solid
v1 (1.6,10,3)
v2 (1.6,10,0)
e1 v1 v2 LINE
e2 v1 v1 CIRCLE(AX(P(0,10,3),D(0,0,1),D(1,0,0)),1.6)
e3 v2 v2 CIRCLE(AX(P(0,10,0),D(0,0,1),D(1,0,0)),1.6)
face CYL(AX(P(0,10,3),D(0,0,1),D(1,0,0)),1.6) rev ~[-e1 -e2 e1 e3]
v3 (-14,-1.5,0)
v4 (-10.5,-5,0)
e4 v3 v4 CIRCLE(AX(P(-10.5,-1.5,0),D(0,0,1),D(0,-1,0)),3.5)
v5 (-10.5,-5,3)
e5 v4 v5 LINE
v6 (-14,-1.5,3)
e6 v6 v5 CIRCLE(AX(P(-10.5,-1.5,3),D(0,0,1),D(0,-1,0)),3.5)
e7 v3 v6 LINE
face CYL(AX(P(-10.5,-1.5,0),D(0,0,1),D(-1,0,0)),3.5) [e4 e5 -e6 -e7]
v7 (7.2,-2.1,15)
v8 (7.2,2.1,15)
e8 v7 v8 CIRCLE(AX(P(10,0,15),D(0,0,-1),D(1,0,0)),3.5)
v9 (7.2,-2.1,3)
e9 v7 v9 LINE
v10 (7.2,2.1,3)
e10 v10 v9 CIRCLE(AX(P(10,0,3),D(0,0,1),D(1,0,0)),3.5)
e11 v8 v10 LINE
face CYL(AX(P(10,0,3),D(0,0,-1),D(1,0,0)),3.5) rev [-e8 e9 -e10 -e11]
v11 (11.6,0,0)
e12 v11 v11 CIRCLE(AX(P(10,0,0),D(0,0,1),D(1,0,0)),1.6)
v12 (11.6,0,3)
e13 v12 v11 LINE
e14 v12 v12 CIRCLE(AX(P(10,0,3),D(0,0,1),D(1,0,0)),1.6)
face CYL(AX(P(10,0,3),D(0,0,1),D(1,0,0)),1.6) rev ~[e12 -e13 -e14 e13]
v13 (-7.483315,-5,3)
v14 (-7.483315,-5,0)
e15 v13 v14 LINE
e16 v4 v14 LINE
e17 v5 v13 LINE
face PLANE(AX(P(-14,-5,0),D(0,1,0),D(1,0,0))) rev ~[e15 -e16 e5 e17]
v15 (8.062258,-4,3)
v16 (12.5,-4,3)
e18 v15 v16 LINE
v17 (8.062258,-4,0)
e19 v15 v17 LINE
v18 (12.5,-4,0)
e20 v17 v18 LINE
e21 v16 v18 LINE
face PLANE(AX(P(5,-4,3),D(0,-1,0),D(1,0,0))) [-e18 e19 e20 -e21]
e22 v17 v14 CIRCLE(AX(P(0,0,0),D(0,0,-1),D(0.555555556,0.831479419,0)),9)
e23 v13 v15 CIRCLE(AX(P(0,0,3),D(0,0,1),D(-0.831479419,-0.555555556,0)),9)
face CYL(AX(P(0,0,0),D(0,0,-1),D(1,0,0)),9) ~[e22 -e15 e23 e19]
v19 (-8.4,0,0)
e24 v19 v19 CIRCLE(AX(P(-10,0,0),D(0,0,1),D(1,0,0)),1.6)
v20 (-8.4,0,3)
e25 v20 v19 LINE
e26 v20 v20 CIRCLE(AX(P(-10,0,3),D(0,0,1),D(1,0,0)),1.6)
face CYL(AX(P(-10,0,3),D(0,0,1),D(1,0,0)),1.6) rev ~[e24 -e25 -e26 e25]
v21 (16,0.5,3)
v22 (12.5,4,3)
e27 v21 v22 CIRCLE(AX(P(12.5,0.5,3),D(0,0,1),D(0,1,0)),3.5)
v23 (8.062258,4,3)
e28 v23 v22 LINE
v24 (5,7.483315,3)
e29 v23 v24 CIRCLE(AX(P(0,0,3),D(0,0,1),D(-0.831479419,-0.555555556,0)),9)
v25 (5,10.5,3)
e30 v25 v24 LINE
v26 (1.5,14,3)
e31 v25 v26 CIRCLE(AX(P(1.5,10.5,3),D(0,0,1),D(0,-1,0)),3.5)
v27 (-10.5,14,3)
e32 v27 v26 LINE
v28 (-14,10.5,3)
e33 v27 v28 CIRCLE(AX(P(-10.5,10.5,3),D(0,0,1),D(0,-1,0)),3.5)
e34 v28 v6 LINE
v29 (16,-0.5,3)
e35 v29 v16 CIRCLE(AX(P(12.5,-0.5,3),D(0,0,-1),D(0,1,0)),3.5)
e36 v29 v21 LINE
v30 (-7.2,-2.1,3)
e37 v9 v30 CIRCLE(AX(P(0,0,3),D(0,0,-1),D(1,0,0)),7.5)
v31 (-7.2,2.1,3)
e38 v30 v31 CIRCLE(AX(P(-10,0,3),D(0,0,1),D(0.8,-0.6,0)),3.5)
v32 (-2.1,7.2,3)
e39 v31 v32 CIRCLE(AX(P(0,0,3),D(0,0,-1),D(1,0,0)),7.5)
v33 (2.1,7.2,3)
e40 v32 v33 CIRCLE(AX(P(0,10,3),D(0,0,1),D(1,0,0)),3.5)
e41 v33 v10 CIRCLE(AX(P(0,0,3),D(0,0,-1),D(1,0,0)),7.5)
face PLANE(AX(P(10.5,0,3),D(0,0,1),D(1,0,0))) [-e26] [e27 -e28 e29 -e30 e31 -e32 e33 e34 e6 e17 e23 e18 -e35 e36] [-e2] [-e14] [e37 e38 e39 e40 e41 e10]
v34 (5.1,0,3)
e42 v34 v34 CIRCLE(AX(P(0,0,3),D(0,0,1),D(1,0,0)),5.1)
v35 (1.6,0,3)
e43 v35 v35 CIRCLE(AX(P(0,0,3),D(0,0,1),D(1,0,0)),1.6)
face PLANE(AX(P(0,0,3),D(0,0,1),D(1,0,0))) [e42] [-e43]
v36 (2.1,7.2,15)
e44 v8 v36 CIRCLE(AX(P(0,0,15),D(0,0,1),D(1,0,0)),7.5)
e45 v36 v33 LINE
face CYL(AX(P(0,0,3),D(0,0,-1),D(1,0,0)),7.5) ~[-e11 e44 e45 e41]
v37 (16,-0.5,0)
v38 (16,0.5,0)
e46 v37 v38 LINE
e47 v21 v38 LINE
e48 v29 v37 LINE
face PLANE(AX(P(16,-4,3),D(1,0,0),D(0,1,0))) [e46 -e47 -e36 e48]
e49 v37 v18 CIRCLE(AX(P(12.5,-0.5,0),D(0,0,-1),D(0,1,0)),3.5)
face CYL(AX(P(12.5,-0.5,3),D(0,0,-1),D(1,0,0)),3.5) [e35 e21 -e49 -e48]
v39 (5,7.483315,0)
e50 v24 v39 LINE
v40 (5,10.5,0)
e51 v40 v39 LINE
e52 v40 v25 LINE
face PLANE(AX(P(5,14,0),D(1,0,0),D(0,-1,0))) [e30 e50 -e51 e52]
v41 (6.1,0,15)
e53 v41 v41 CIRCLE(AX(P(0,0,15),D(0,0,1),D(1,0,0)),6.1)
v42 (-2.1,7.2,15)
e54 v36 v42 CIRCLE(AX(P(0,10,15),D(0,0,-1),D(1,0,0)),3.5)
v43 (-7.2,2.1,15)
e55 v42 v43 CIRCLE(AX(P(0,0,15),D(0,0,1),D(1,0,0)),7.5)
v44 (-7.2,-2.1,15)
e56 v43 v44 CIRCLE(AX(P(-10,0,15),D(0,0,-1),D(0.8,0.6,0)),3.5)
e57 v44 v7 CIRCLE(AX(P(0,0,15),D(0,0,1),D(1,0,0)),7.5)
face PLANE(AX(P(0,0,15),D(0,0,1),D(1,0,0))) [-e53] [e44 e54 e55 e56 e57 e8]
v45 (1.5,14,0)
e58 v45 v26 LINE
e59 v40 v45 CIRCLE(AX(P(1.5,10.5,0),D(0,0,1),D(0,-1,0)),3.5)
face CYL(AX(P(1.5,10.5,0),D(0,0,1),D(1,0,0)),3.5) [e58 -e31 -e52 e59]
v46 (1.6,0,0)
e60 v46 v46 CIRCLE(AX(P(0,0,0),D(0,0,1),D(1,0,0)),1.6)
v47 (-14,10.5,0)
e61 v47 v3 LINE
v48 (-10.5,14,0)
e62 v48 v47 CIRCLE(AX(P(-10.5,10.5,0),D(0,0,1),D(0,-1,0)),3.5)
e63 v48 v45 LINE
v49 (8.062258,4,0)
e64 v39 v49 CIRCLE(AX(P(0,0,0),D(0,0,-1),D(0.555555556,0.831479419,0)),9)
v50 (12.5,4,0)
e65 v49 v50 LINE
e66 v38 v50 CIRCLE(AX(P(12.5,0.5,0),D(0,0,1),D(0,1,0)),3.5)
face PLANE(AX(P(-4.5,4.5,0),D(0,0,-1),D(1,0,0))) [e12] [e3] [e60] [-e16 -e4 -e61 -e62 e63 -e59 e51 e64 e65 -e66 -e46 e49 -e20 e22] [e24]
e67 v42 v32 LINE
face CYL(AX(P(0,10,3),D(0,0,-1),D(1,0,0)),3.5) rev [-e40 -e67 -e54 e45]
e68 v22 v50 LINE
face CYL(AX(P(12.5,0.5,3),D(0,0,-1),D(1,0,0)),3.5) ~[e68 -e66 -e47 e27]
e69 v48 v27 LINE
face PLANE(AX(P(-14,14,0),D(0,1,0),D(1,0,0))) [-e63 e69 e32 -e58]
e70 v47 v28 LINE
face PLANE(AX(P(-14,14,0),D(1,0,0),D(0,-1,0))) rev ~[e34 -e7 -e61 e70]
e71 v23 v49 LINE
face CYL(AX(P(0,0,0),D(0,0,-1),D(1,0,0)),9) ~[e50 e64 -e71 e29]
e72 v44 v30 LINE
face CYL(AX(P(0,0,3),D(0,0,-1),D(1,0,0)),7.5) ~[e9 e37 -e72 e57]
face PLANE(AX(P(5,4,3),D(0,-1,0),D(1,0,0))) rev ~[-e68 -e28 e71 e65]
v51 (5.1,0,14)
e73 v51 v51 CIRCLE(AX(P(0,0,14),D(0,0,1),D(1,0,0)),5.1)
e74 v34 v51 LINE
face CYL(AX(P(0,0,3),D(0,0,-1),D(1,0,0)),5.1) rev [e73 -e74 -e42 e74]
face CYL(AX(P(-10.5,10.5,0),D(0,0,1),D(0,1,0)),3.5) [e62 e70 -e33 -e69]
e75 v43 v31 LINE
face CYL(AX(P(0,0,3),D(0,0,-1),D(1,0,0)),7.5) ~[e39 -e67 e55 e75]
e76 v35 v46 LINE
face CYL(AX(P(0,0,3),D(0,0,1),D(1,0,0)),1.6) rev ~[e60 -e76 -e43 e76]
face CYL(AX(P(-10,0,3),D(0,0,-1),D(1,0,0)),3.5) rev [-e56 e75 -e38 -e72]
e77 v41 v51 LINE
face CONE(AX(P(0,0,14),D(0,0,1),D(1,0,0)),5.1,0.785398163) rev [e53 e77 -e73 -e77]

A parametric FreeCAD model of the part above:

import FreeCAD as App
import Part
import Sketcher
from FreeCAD import Vector


def edges_at(feature, points):
    """Names of the edges that pass closest to the given points."""
    edges = feature.Shape.Edges
    near = lambda p: min(range(len(edges)), key=lambda i: edges[i].distToShape(Part.Vertex(*p))[0])
    return sorted({f"Edge{near(p) + 1}" for p in points})

doc = App.newDocument("Part")
body = doc.addObject("PartDesign::Body", "Body")

# Sketch on XY plane
sketch1 = body.newObject("Sketcher::SketchObject", "Sketch")
sketch1.AttachmentSupport = (doc.getObject("XY_Plane"), [""])
sketch1.MapMode = "FlatFace"
sketch1.addGeometry([
    Part.Circle(Vector(0, 0, 0), Vector(0, 0, 1), 9),
    Part.Circle(Vector(0, 0, 0), Vector(0, 0, 1), 1.6),
], False)
sketch1.addConstraint([
    Sketcher.Constraint("Coincident", 0, 3, -1, 1),
    Sketcher.Constraint("Coincident", 1, 3, -1, 1),
    Sketcher.Constraint("Diameter", 0, 18.0),
    Sketcher.Constraint("Diameter", 1, 3.2),
])
pad1 = body.newObject("PartDesign::Pad", "Pad")
pad1.Profile = sketch1
pad1.Length = 3

# Sketch on XY plane
sketch2 = body.newObject("Sketcher::SketchObject", "Sketch001")
sketch2.AttachmentSupport = (doc.getObject("XY_Plane"), [""])
sketch2.MapMode = "FlatFace"
sketch2.AttachmentOffset = App.Placement(Vector(0, 0, 3), App.Rotation())
sketch2.addGeometry([
    Part.Circle(Vector(0, 0, 0), Vector(0, 0, 1), 8),
    Part.Circle(Vector(0, 0, 0), Vector(0, 0, 1), 5),
], False)
sketch2.addConstraint([
    Sketcher.Constraint("Coincident", 0, 3, -1, 1),
    Sketcher.Constraint("Coincident", 1, 3, -1, 1),
    Sketcher.Constraint("Diameter", 0, 15.0),
    Sketcher.Constraint("Diameter", 1, 10.2),
])
pad2 = body.newObject("PartDesign::Pad", "Pad001")
pad2.Profile = sketch2
pad2.Length = 12

# Sketch on XY plane
sketch3 = body.newObject("Sketcher::SketchObject", "Sketch002")
sketch3.AttachmentSupport = (doc.getObject("XY_Plane"), [""])
sketch3.MapMode = "FlatFace"
sketch3.addGeometry([
    Part.LineSegment(Vector(-14, -5, 0), Vector(-14, 14, 0)),
    Part.LineSegment(Vector(-14, 14, 0), Vector(5, 14, 0)),
    Part.LineSegment(Vector(5, 14, 0), Vector(5, -5, 0)),
    Part.LineSegment(Vector(5, -5, 0), Vector(-14, -5, 0)),
], False)
sketch3.addConstraint([
    Sketcher.Constraint("Coincident", 0, 2, 1, 1),
    Sketcher.Constraint("Coincident", 1, 2, 2, 1),
    Sketcher.Constraint("Coincident", 2, 2, 3, 1),
    Sketcher.Constraint("Coincident", 3, 2, 0, 1),
    Sketcher.Constraint("Vertical", 0),
    Sketcher.Constraint("Horizontal", 1),
    Sketcher.Constraint("Vertical", 2),
    Sketcher.Constraint("Horizontal", 3),
    Sketcher.Constraint("Equal", 3, 0),
    Sketcher.Constraint("DistanceX", 1, 1, 1, 2, 19.0),
    Sketcher.Constraint("DistanceX", 0, 2, -1, 1, 14.0),
    Sketcher.Constraint("DistanceY", -1, 1, 0, 2, 14.0),
])
pad3 = body.newObject("PartDesign::Pad", "Pad002")
pad3.Profile = sketch3
pad3.Length = 3

# Sketch on XY plane
sketch4 = body.newObject("Sketcher::SketchObject", "Sketch003")
sketch4.AttachmentSupport = (doc.getObject("XY_Plane"), [""])
sketch4.MapMode = "FlatFace"
sketch4.AttachmentOffset = App.Placement(Vector(0, 0, 3), App.Rotation())
sketch4.addGeometry(Part.Circle(Vector(0, 0, 0), Vector(0, 0, 1), 1.6), False)
sketch4.addConstraint([
    Sketcher.Constraint("Coincident", 0, 3, -1, 1),
    Sketcher.Constraint("Diameter", 0, 3.2),
])
pocket1 = body.newObject("PartDesign::Pocket", "Pocket")
pocket1.Profile = sketch4
pocket1.Type = "ThroughAll"

# Sketch on XY plane
sketch5 = body.newObject("Sketcher::SketchObject", "Sketch004")
sketch5.AttachmentSupport = (doc.getObject("XY_Plane"), [""])
sketch5.MapMode = "FlatFace"
sketch5.AttachmentOffset = App.Placement(Vector(0, 0, 3), App.Rotation())
sketch5.addGeometry([
    Part.LineSegment(Vector(5, 4, 0), Vector(5, -4, 0)),
    Part.LineSegment(Vector(5, -4, 0), Vector(16, -4, 0)),
    Part.LineSegment(Vector(16, -4, 0), Vector(16, 4, 0)),
    Part.LineSegment(Vector(16, 4, 0), Vector(5, 4, 0)),
], False)
sketch5.addConstraint([
    Sketcher.Constraint("Coincident", 0, 2, 1, 1),
    Sketcher.Constraint("Coincident", 1, 2, 2, 1),
    Sketcher.Constraint("Coincident", 2, 2, 3, 1),
    Sketcher.Constraint("Coincident", 3, 2, 0, 1),
    Sketcher.Constraint("Vertical", 0),
    Sketcher.Constraint("Horizontal", 1),
    Sketcher.Constraint("Vertical", 2),
    Sketcher.Constraint("Horizontal", 3),
    Sketcher.Constraint("DistanceX", 1, 1, 1, 2, 11.0),
    Sketcher.Constraint("DistanceY", 0, 2, 0, 1, 8.0),
    Sketcher.Constraint("DistanceX", -1, 1, 0, 2, 5.0),
    Sketcher.Constraint("DistanceY", 0, 2, -1, 1, 4.0),
])
pad4 = body.newObject("PartDesign::Pad", "Pad003")
pad4.Profile = sketch5
pad4.Length = 3
pad4.Reversed = True
doc.recompute()

fillet = body.newObject("PartDesign::Fillet", "Fillet")
fillet.Base = (pad4, edges_at(pad4, [
    (-14, -5, 1.5),
    (-14, 14, 1.5),
    (5, 14, 1.5),
    (16, 4, 1.5),
    (16, -4, 1.5),
]))
fillet.Radius = 3.5

# Sketch on XY plane
sketch6 = body.newObject("Sketcher::SketchObject", "Sketch005")
sketch6.AttachmentSupport = (doc.getObject("XY_Plane"), [""])
sketch6.MapMode = "FlatFace"
sketch6.AttachmentOffset = App.Placement(Vector(0, 0, 3), App.Rotation())
sketch6.addGeometry([
    Part.Circle(Vector(0, 10, 0), Vector(0, 0, 1), 1.6),
    Part.Circle(Vector(-10, 0, 0), Vector(0, 0, 1), 1.6),
    Part.Circle(Vector(10, 0, 0), Vector(0, 0, 1), 1.6),
], False)
sketch6.addConstraint([
    Sketcher.Constraint("Equal", 0, 1),
    Sketcher.Constraint("Equal", 1, 2),
    Sketcher.Constraint("Symmetric", 1, 3, 2, 3, -1, 1),
    Sketcher.Constraint("PointOnObject", 0, 3, -2),
    Sketcher.Constraint("PointOnObject", 1, 3, -1),
    Sketcher.Constraint("Diameter", 0, 3.2),
    Sketcher.Constraint("DistanceY", -1, 1, 0, 3, 10.0),
    Sketcher.Constraint("DistanceX", 1, 3, -1, 1, 10.0),
])
pocket2 = body.newObject("PartDesign::Pocket", "Pocket001")
pocket2.Profile = sketch6
pocket2.Type = "ThroughAll"

# Sketch on XY plane
sketch7 = body.newObject("Sketcher::SketchObject", "Sketch006")
sketch7.AttachmentSupport = (doc.getObject("XY_Plane"), [""])
sketch7.MapMode = "FlatFace"
sketch7.AttachmentOffset = App.Placement(Vector(0, 0, 3), App.Rotation())
sketch7.addGeometry([
    Part.Circle(Vector(0, 10, 0), Vector(0, 0, 1), 3.5),
    Part.Circle(Vector(-10, 0, 0), Vector(0, 0, 1), 3.5),
    Part.Circle(Vector(10, 0, 0), Vector(0, 0, 1), 3.5),
], False)
sketch7.addConstraint([
    Sketcher.Constraint("Equal", 0, 1),
    Sketcher.Constraint("Equal", 1, 2),
    Sketcher.Constraint("Symmetric", 1, 3, 2, 3, -1, 1),
    Sketcher.Constraint("PointOnObject", 0, 3, -2),
    Sketcher.Constraint("PointOnObject", 1, 3, -1),
    Sketcher.Constraint("Diameter", 0, 7.0),
    Sketcher.Constraint("DistanceY", -1, 1, 0, 3, 10.0),
    Sketcher.Constraint("DistanceX", 1, 3, -1, 1, 10.0),
])
pocket3 = body.newObject("PartDesign::Pocket", "Pocket002")
pocket3.Profile = sketch7
pocket3.Type = "ThroughAll"
pocket3.Reversed = True
doc.recompute()

chamfer = body.newObject("PartDesign::Chamfer", "Chamfer")
chamfer.Base = (pocket3, edges_at(pocket3, [(-5.1, 0, 15)]))
chamfer.Size = 1

doc.recompute()
